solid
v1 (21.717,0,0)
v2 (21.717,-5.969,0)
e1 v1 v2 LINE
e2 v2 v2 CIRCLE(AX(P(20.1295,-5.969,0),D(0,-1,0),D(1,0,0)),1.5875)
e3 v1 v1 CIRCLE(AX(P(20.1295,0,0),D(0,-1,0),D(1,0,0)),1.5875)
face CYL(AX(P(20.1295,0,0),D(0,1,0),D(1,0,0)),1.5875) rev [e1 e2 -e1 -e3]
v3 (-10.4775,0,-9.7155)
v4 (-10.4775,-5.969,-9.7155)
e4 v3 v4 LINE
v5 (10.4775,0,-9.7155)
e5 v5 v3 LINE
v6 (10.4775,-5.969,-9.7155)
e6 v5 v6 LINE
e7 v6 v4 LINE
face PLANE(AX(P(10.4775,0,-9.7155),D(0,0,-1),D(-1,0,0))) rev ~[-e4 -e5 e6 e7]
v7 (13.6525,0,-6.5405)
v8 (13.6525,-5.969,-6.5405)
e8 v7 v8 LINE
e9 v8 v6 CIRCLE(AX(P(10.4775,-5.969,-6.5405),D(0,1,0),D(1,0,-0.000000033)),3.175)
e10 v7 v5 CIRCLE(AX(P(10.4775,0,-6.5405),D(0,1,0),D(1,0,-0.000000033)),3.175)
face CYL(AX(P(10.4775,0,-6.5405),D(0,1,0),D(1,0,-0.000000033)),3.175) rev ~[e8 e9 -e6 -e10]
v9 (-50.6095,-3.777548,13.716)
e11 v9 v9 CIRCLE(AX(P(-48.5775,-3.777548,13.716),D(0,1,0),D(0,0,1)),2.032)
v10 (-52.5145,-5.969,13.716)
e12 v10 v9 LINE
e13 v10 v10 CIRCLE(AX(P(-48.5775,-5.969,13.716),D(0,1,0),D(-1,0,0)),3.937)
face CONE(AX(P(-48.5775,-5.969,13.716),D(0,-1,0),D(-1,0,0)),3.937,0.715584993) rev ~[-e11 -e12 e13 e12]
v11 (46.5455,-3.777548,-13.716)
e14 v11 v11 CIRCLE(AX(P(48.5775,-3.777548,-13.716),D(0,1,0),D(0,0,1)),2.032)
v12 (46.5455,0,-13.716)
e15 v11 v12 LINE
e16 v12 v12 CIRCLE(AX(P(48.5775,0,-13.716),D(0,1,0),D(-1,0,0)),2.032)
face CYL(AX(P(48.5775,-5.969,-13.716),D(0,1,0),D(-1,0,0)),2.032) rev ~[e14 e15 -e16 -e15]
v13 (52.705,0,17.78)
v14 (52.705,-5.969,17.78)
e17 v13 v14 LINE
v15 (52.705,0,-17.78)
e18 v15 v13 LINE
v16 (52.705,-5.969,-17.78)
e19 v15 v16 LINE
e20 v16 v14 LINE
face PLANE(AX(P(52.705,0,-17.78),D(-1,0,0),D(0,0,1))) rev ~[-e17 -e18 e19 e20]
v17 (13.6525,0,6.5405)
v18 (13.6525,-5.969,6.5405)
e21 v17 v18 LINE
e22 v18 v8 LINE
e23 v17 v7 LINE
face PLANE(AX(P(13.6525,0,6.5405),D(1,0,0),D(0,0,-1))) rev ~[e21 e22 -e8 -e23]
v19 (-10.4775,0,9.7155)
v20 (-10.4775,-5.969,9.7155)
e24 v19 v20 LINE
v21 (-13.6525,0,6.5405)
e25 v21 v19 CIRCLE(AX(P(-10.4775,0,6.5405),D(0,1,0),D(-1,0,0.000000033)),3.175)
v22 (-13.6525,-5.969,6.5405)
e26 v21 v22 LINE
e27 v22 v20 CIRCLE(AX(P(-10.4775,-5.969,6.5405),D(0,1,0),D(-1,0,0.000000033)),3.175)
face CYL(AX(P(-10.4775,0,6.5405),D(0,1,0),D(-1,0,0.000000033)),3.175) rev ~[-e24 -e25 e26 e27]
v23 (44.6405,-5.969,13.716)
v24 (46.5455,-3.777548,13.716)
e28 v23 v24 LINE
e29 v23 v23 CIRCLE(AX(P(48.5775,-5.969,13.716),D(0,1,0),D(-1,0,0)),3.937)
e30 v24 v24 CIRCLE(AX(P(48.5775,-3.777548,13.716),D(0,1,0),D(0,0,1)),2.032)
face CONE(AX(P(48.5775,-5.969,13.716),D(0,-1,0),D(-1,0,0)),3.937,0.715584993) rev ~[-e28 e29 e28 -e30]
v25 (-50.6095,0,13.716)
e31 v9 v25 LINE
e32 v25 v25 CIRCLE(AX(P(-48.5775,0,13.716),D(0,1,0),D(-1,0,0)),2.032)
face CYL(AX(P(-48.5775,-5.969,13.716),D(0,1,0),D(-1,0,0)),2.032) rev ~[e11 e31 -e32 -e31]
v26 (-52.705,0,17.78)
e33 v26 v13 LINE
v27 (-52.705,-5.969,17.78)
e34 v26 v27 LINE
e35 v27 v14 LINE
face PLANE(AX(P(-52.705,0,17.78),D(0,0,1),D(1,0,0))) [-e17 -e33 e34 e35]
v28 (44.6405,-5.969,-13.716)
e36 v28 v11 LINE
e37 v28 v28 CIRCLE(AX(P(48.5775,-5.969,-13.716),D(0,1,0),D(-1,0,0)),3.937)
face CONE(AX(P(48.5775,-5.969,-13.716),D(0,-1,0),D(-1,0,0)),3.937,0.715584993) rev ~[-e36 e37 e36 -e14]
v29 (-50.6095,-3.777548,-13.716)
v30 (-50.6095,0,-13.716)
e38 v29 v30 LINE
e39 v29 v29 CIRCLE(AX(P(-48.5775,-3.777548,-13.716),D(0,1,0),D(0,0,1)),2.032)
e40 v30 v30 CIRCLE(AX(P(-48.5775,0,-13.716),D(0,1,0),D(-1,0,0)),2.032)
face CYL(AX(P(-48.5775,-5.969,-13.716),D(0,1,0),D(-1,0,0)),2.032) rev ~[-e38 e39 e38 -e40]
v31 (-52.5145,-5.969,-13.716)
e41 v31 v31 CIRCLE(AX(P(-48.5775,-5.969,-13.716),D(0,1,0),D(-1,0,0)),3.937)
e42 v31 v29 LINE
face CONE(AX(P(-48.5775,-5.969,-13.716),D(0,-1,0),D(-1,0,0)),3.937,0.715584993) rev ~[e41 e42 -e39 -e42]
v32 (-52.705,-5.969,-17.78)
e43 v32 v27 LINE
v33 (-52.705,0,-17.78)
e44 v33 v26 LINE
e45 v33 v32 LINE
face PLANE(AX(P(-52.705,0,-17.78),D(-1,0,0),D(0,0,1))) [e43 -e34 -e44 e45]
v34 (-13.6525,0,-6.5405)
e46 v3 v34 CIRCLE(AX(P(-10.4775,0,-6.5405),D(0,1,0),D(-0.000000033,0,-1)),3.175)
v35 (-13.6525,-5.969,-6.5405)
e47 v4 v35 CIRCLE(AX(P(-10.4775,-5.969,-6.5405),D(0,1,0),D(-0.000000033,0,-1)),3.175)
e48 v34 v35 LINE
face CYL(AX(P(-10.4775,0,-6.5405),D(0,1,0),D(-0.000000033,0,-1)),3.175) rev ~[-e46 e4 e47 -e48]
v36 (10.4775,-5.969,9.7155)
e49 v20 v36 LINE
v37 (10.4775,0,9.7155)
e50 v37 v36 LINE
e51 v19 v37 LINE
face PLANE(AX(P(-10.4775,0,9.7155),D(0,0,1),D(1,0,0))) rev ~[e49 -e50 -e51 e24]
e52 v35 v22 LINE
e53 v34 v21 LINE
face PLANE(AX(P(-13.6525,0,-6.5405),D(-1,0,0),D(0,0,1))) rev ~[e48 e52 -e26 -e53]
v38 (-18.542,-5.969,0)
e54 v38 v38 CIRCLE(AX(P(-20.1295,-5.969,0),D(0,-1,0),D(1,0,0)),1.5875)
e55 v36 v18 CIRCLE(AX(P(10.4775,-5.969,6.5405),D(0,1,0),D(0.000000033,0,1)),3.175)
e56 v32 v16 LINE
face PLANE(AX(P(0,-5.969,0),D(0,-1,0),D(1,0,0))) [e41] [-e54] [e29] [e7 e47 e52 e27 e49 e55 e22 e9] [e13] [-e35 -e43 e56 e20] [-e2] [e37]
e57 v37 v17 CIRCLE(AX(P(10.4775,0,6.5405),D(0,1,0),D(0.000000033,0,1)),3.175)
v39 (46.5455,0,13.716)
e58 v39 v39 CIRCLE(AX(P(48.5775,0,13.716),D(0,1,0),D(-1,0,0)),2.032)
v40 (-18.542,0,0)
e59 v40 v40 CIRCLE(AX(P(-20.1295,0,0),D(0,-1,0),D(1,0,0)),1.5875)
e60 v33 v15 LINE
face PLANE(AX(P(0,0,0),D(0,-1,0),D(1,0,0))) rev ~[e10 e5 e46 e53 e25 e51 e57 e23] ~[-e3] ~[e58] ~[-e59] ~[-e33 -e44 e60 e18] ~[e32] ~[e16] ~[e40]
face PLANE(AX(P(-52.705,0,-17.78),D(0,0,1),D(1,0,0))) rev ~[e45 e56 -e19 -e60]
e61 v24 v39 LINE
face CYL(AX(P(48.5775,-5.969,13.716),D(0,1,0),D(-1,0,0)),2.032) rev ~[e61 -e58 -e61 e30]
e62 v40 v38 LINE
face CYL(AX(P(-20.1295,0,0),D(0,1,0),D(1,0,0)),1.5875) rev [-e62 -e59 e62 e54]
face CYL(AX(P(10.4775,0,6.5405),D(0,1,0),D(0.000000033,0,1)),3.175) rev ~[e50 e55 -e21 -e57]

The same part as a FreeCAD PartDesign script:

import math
import FreeCAD as App
import Part
import Sketcher

V = App.Vector
Q = App.Units.Quantity

doc = App.newDocument("Part")
params = doc.addObject("Spreadsheet::Sheet", "Params")
for row, (alias, value) in enumerate([
    ("sketch1_diameter", "0.125 in"),
    ("sketch1_height", "1.4 in"),
    ("sketch1_radius", "0.125 in"),
    ("sketch1_width", "4.15 in"),
    ("sketch1_width2", "0.825 in"),
    ("pad1_length", "0.235 in"),
    ("sketch2_diameter", "0.16 in"),
    ("hole_diameter", "0.16 in"),
    ("hole_depth", "2 in"),
    ("hole_csink_diameter", "0.31 in"),
], start=1):
    params.set(f"A{row}", alias)
    params.set(f"B{row}", "=" + value)
    params.setAlias(f"B{row}", alias)

body = doc.addObject("PartDesign::Body", "Body")

sketch1 = doc.addObject("Sketcher::SketchObject", "Sketch")
body.addObject(sketch1)
sketch1.AttachmentSupport = (doc.XZ_Plane, [""])
sketch1.MapMode = "FlatFace"
sketch1.addGeometry([
    Part.LineSegment(V(-52.7, 17.8, 0), V(-52.7, -17.8, 0)),
    Part.LineSegment(V(-52.7, -17.8, 0), V(52.7, -17.8, 0)),
    Part.LineSegment(V(52.7, -17.8, 0), V(52.7, 17.8, 0)),
    Part.LineSegment(V(52.7, 17.8, 0), V(-52.7, 17.8, 0)),
    Part.Circle(V(-20.1, 0, 0), V(0, 0, 1), 1.6),
    Part.ArcOfCircle(Part.Circle(V(-10.5, 6.5, 0), V(0, 0, 1), 3.2), math.radians(90), math.radians(180)),
    Part.LineSegment(V(-10.5, 9.7, 0), V(10.5, 9.7, 0)),
    Part.ArcOfCircle(Part.Circle(V(10.5, 6.5, 0), V(0, 0, 1), 3.2), math.radians(0), math.radians(90)),
    Part.LineSegment(V(13.7, 6.5, 0), V(13.7, -6.5, 0)),
    Part.ArcOfCircle(Part.Circle(V(10.5, -6.5, 0), V(0, 0, 1), 3.2), math.radians(-90), math.radians(0)),
    Part.LineSegment(V(10.5, -9.7, 0), V(-10.5, -9.7, 0)),
    Part.ArcOfCircle(Part.Circle(V(-10.5, -6.5, 0), V(0, 0, 1), 3.2), math.radians(-180), math.radians(-90)),
    Part.LineSegment(V(-13.7, -6.5, 0), V(-13.7, 6.5, 0)),
    Part.Circle(V(20.1, 0, 0), V(0, 0, 1), 1.6),
], False)
sketch1.addConstraint([
    Sketcher.Constraint("Coincident", 0, 2, 1, 1),
    Sketcher.Constraint("Coincident", 1, 2, 2, 1),
    Sketcher.Constraint("Coincident", 2, 2, 3, 1),
    Sketcher.Constraint("Coincident", 3, 2, 0, 1),
    Sketcher.Constraint("Tangent", 5, 1, 6, 1),
    Sketcher.Constraint("Tangent", 6, 2, 7, 2),
    Sketcher.Constraint("Tangent", 7, 1, 8, 1),
    Sketcher.Constraint("Tangent", 8, 2, 9, 2),
    Sketcher.Constraint("Tangent", 9, 1, 10, 1),
    Sketcher.Constraint("Tangent", 10, 2, 11, 2),
    Sketcher.Constraint("Tangent", 11, 1, 12, 1),
    Sketcher.Constraint("Tangent", 12, 2, 5, 2),
    Sketcher.Constraint("Vertical", 0),
    Sketcher.Constraint("Horizontal", 1),
    Sketcher.Constraint("Vertical", 2),
    Sketcher.Constraint("Horizontal", 3),
    Sketcher.Constraint("Horizontal", 6),
    Sketcher.Constraint("Vertical", 8),
    Sketcher.Constraint("Horizontal", 10),
    Sketcher.Constraint("Vertical", 12),
    Sketcher.Constraint("Equal", 5, 7),
    Sketcher.Constraint("Equal", 7, 9),
    Sketcher.Constraint("Equal", 9, 11),
    Sketcher.Constraint("Equal", 4, 13),
    Sketcher.Constraint("Symmetric", 5, 3, 9, 3, -1, 1),
    Sketcher.Constraint("Symmetric", 4, 3, 13, 3, -1, 1),
    Sketcher.Constraint("Symmetric", 0, 2, 2, 2, -1, 1),
    Sketcher.Constraint("PointOnObject", 4, 3, -1),
    Sketcher.Constraint("Diameter", 4, Q("0.125 in")),
    Sketcher.Constraint("DistanceY", 0, 2, 0, 1, Q("1.4 in")),
    Sketcher.Constraint("Radius", 5, Q("0.125 in")),
    Sketcher.Constraint("DistanceX", 1, 1, 1, 2, Q("4.15 in")),
    Sketcher.Constraint("DistanceX", 6, 1, 6, 2, Q("0.825 in")),
    Sketcher.Constraint("DistanceY", 8, 2, 8, 1, Q("0.515 in")),
    Sketcher.Constraint("DistanceX", 4, 3, 5, 3, Q("0.38 in")),
])
sketch1.setExpression("Constraints[28]", "Params.sketch1_diameter")
sketch1.setExpression("Constraints[29]", "Params.sketch1_height")
sketch1.setExpression("Constraints[30]", "Params.sketch1_radius")
sketch1.setExpression("Constraints[31]", "Params.sketch1_width")
sketch1.setExpression("Constraints[32]", "Params.sketch1_width2")
pad1 = doc.addObject("PartDesign::Pad", "Pad")
body.addObject(pad1)
pad1.Profile = sketch1
pad1.setExpression("Length", "Params.pad1_length")

sketch2 = doc.addObject("Sketcher::SketchObject", "Sketch001")
body.addObject(sketch2)
sketch2.AttachmentSupport = (doc.XZ_Plane, [""])
sketch2.MapMode = "FlatFace"
sketch2.AttachmentOffset = App.Placement(V(0, 0, 0.235 * 25.4), App.Rotation())
sketch2.addGeometry([
    Part.Circle(V(-48.6, 13.7, 0), V(0, 0, 1), 2),
    Part.Circle(V(-48.6, -13.7, 0), V(0, 0, 1), 2),
    Part.Circle(V(48.6, -13.7, 0), V(0, 0, 1), 2),
    Part.Circle(V(48.6, 13.7, 0), V(0, 0, 1), 2),
], False)
sketch2.addConstraint([
    Sketcher.Constraint("Equal", 0, 1),
    Sketcher.Constraint("Equal", 1, 2),
    Sketcher.Constraint("Equal", 2, 3),
    Sketcher.Constraint("Symmetric", 0, 3, 2, 3, -1, 1),
    Sketcher.Constraint("Symmetric", 1, 3, 3, 3, -1, 1),
    Sketcher.Constraint("Symmetric", 1, 3, 2, 3, -2),
    Sketcher.Constraint("Diameter", 0, Q("0.16 in")),
    Sketcher.Constraint("DistanceY", -1, 1, 0, 3, Q("0.54 in")),
    Sketcher.Constraint("DistanceX", 1, 3, 2, 3, Q("3.825 in")),
])
sketch2.setExpression("Constraints[6]", "Params.sketch2_diameter")
doc.recompute()
hole = doc.addObject("PartDesign::Hole", "Hole")
body.addObject(hole)
hole.Profile = sketch2
hole.ThreadType = "None"
hole.setExpression("Diameter", "Params.hole_diameter")
hole.DepthType = "Dimension"
hole.setExpression("Depth", "Params.hole_depth")
hole.DrillPoint = "Flat"
hole.HoleCutType = "Countersink"
hole.setExpression("HoleCutDiameter", "Params.hole_csink_diameter")
hole.HoleCutCountersinkAngle = 82

doc.recompute()
